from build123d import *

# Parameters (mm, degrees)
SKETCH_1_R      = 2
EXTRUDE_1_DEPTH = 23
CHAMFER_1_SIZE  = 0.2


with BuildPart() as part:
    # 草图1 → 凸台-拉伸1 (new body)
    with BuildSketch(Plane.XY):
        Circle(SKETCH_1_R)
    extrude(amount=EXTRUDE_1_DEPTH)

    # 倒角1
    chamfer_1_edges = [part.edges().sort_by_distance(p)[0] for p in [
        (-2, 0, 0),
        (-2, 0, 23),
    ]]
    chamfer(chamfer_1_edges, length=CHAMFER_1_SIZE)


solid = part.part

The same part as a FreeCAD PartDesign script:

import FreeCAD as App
import Part
import Sketcher
Q = App.Units.Quantity


def edges_at(feature, points):
    """Names of the edges that pass closest to the given points."""
    edges = feature.Shape.Edges
    near = lambda p: min(range(len(edges)), key=lambda i: edges[i].distToShape(Part.Vertex(*p))[0])
    return sorted({f"Edge{near(p) + 1}" for p in points})

doc = App.newDocument("Part")
body = doc.addObject("PartDesign::Body", "Body")

sketch1 = body.newObject("Sketcher::SketchObject", "Sketch")
sketch1.AttachmentSupport = (doc.getObject("XY_Plane"), [""])
sketch1.MapMode = "FlatFace"
sketch1.addGeometry(Part.Circle(App.Vector(0, 0, 0), App.Vector(0, 0, 1), 2), False)
sketch1.addConstraint(Sketcher.Constraint("Coincident", 0, 3, -1, 1))
sketch1.addConstraint(Sketcher.Constraint("Diameter", 0, Q("4 mm")))
pad1 = body.newObject("PartDesign::Pad", "Pad")
pad1.Profile = sketch1
pad1.Length = 23
doc.recompute()

chamfer = body.newObject("PartDesign::Chamfer", "Chamfer")
chamfer.Base = (pad1, edges_at(pad1, [(-2, 0, 0), (-2, 0, 23)]))
chamfer.Size = 0.2

doc.recompute()
